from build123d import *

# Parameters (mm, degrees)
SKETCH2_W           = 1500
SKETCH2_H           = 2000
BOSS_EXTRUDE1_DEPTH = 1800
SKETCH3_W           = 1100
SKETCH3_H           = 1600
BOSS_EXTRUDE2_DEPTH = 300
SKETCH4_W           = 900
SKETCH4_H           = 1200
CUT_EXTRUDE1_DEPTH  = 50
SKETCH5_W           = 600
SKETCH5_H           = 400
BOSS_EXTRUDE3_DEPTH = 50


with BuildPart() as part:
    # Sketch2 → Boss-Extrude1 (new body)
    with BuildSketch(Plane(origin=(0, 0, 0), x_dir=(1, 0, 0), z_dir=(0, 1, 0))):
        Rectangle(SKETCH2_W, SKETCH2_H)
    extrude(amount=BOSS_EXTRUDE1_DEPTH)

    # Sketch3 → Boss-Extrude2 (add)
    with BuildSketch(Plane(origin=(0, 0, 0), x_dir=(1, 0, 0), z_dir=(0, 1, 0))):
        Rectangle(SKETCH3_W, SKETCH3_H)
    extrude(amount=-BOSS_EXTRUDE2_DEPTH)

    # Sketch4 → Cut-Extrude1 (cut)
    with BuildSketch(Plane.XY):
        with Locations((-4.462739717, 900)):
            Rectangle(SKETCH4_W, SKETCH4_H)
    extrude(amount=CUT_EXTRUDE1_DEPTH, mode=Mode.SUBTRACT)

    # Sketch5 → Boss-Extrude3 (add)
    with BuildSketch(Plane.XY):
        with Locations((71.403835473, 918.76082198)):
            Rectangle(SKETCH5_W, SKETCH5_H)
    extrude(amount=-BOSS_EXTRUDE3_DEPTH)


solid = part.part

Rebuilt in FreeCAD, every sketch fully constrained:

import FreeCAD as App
import Part
import Sketcher

V = App.Vector
Q = App.Units.Quantity

doc = App.newDocument("Part")
body = doc.addObject("PartDesign::Body", "Body")

# Sketch on XZ plane
sketch1 = body.newObject("Sketcher::SketchObject", "Sketch")
sketch1.AttachmentSupport = (doc.getObject("XZ_Plane"), [""])
sketch1.MapMode = "FlatFace"
sketch1.addGeometry(Part.LineSegment(V(-750, -1000, 0), V(-750, 1000, 0)), False)
sketch1.addGeometry(Part.LineSegment(V(-750, 1000, 0), V(750, 1000, 0)), False)
sketch1.addGeometry(Part.LineSegment(V(750, 1000, 0), V(750, -1000, 0)), False)
sketch1.addGeometry(Part.LineSegment(V(750, -1000, 0), V(-750, -1000, 0)), False)
sketch1.addConstraint(Sketcher.Constraint("Coincident", 0, 2, 1, 1))
sketch1.addConstraint(Sketcher.Constraint("Coincident", 1, 2, 2, 1))
sketch1.addConstraint(Sketcher.Constraint("Coincident", 2, 2, 3, 1))
sketch1.addConstraint(Sketcher.Constraint("Coincident", 3, 2, 0, 1))
sketch1.addConstraint(Sketcher.Constraint("Vertical", 0))
sketch1.addConstraint(Sketcher.Constraint("Horizontal", 1))
sketch1.addConstraint(Sketcher.Constraint("Vertical", 2))
sketch1.addConstraint(Sketcher.Constraint("Horizontal", 3))
sketch1.addConstraint(Sketcher.Constraint("Symmetric", 0, 2, 2, 2, -1, 1))
sketch1.addConstraint(Sketcher.Constraint("DistanceX", 1, 1, 1, 2, Q("1500 mm")))
sketch1.addConstraint(Sketcher.Constraint("DistanceY", 0, 1, 0, 2, Q("2000 mm")))
pad1 = body.newObject("PartDesign::Pad", "Pad")
pad1.Profile = sketch1
pad1.Length = 1800
pad1.Reversed = True

# Sketch on XZ plane
sketch2 = body.newObject("Sketcher::SketchObject", "Sketch001")
sketch2.AttachmentSupport = (doc.getObject("XZ_Plane"), [""])
sketch2.MapMode = "FlatFace"
sketch2.addGeometry(Part.LineSegment(V(-550, -800, 0), V(-550, 800, 0)), False)
sketch2.addGeometry(Part.LineSegment(V(-550, 800, 0), V(550, 800, 0)), False)
sketch2.addGeometry(Part.LineSegment(V(550, 800, 0), V(550, -800, 0)), False)
sketch2.addGeometry(Part.LineSegment(V(550, -800, 0), V(-550, -800, 0)), False)
sketch2.addConstraint(Sketcher.Constraint("Coincident", 0, 2, 1, 1))
sketch2.addConstraint(Sketcher.Constraint("Coincident", 1, 2, 2, 1))
sketch2.addConstraint(Sketcher.Constraint("Coincident", 2, 2, 3, 1))
sketch2.addConstraint(Sketcher.Constraint("Coincident", 3, 2, 0, 1))
sketch2.addConstraint(Sketcher.Constraint("Vertical", 0))
sketch2.addConstraint(Sketcher.Constraint("Horizontal", 1))
sketch2.addConstraint(Sketcher.Constraint("Vertical", 2))
sketch2.addConstraint(Sketcher.Constraint("Horizontal", 3))
sketch2.addConstraint(Sketcher.Constraint("Symmetric", 0, 2, 2, 2, -1, 1))
sketch2.addConstraint(Sketcher.Constraint("DistanceX", 1, 1, 1, 2, Q("1100 mm")))
sketch2.addConstraint(Sketcher.Constraint("DistanceY", 0, 1, 0, 2, Q("1600 mm")))
pad2 = body.newObject("PartDesign::Pad", "Pad001")
pad2.Profile = sketch2
pad2.Length = 300

# Sketch on XY plane
sketch3 = body.newObject("Sketcher::SketchObject", "Sketch002")
sketch3.AttachmentSupport = (doc.getObject("XY_Plane"), [""])
sketch3.MapMode = "FlatFace"
sketch3.addGeometry(Part.LineSegment(V(-454.46274, 1500, 0), V(-454.46274, 300, 0)), False)
sketch3.addGeometry(Part.LineSegment(V(-454.46274, 300, 0), V(445.53726, 300, 0)), False)
sketch3.addGeometry(Part.LineSegment(V(445.53726, 300, 0), V(445.53726, 1500, 0)), False)
sketch3.addGeometry(Part.LineSegment(V(445.53726, 1500, 0), V(-454.46274, 1500, 0)), False)
sketch3.addConstraint(Sketcher.Constraint("Coincident", 0, 2, 1, 1))
sketch3.addConstraint(Sketcher.Constraint("Coincident", 1, 2, 2, 1))
sketch3.addConstraint(Sketcher.Constraint("Coincident", 2, 2, 3, 1))
sketch3.addConstraint(Sketcher.Constraint("Coincident", 3, 2, 0, 1))
sketch3.addConstraint(Sketcher.Constraint("Vertical", 0))
sketch3.addConstraint(Sketcher.Constraint("Horizontal", 1))
sketch3.addConstraint(Sketcher.Constraint("Vertical", 2))
sketch3.addConstraint(Sketcher.Constraint("Horizontal", 3))
sketch3.addConstraint(Sketcher.Constraint("DistanceX", 1, 1, 1, 2, Q("900 mm")))
sketch3.addConstraint(Sketcher.Constraint("DistanceY", 0, 2, 0, 1, Q("1200 mm")))
sketch3.addConstraint(Sketcher.Constraint("DistanceY", -1, 1, 0, 2, Q("300 mm")))
sketch3.addConstraint(Sketcher.Constraint("DistanceX", 0, 2, -1, 1, Q("454.46274 mm")))
pocket1 = body.newObject("PartDesign::Pocket", "Pocket")
pocket1.Profile = sketch3
pocket1.Length = 50
pocket1.Reversed = True

# Sketch on XY plane
sketch4 = body.newObject("Sketcher::SketchObject", "Sketch003")
sketch4.AttachmentSupport = (doc.getObject("XY_Plane"), [""])
sketch4.MapMode = "FlatFace"
sketch4.addGeometry(Part.LineSegment(V(-228.596165, 1118.760822, 0), V(-228.596165, 718.760822, 0)), False)
sketch4.addGeometry(Part.LineSegment(V(-228.596165, 718.760822, 0), V(371.403835, 718.760822, 0)), False)
sketch4.addGeometry(Part.LineSegment(V(371.403835, 718.760822, 0), V(371.403835, 1118.760822, 0)), False)
sketch4.addGeometry(Part.LineSegment(V(371.403835, 1118.760822, 0), V(-228.596165, 1118.760822, 0)), False)
sketch4.addConstraint(Sketcher.Constraint("Coincident", 0, 2, 1, 1))
sketch4.addConstraint(Sketcher.Constraint("Coincident", 1, 2, 2, 1))
sketch4.addConstraint(Sketcher.Constraint("Coincident", 2, 2, 3, 1))
sketch4.addConstraint(Sketcher.Constraint("Coincident", 3, 2, 0, 1))
sketch4.addConstraint(Sketcher.Constraint("Vertical", 0))
sketch4.addConstraint(Sketcher.Constraint("Horizontal", 1))
sketch4.addConstraint(Sketcher.Constraint("Vertical", 2))
sketch4.addConstraint(Sketcher.Constraint("Horizontal", 3))
sketch4.addConstraint(Sketcher.Constraint("DistanceX", 1, 1, 1, 2, Q("600 mm")))
sketch4.addConstraint(Sketcher.Constraint("DistanceY", 0, 2, 0, 1, Q("400 mm")))
sketch4.addConstraint(Sketcher.Constraint("DistanceY", -1, 1, 0, 2, Q("718.760822 mm")))
sketch4.addConstraint(Sketcher.Constraint("DistanceX", 0, 2, -1, 1, Q("228.596165 mm")))
pad3 = body.newObject("PartDesign::Pad", "Pad002")
pad3.Profile = sketch4
pad3.Length = 50
pad3.Reversed = True

doc.recompute()
